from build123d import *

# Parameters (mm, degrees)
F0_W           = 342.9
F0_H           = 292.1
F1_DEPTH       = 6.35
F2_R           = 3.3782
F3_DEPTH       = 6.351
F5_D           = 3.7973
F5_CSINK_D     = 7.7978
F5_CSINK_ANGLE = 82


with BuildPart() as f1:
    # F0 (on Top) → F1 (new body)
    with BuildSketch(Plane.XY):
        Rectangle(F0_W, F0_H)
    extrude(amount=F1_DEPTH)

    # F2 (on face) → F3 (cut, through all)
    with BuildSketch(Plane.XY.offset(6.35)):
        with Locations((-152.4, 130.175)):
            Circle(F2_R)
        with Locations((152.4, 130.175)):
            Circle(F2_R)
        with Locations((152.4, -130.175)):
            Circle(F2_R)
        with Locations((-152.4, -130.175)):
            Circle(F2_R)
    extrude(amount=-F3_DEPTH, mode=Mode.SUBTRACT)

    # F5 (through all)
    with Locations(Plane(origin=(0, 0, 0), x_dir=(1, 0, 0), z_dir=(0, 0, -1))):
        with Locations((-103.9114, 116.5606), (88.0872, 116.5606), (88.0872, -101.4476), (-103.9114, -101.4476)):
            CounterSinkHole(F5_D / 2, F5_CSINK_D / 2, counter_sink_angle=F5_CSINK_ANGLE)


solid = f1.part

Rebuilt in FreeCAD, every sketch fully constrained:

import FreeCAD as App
import Part
import Sketcher
Q = App.Units.Quantity


def add_polygon(sketch, points):
    """Adds a closed chain of lines whose ends are joined by coincident constraints."""
    first, n = sketch.GeometryCount, len(points)
    for a, b in zip(points, points[1:] + points[:1]):
        sketch.addGeometry(Part.LineSegment(App.Vector(*a, 0), App.Vector(*b, 0)), False)
    for i in range(n):
        sketch.addConstraint(Sketcher.Constraint("Coincident", first + i, 2, first + (i + 1) % n, 1))

doc = App.newDocument("Part")
params = doc.addObject("Spreadsheet::Sheet", "Params")
for row, (alias, value) in enumerate([
    ("sketch1_width", "13.5 in"),
    ("sketch1_height", "11.5 in"),
    ("pad1_length", "0.25 in"),
    ("sketch2_diameter", "0.266 in"),
    ("hole_diameter", "0.1495 in"),
    ("hole_csink_diameter", "0.307 in"),
], start=1):
    params.set(f"A{row}", alias)
    params.set(f"B{row}", "=" + value)
    params.setAlias(f"B{row}", alias)

body = doc.addObject("PartDesign::Body", "Body")

sketch1 = doc.addObject("Sketcher::SketchObject", "Sketch")
body.addObject(sketch1)
sketch1.AttachmentSupport = (doc.XY_Plane, [""])
sketch1.MapMode = "FlatFace"
add_polygon(sketch1, [(-171, 146), (-171, -146), (171, -146), (171, 146)])
sketch1.addConstraint([
    Sketcher.Constraint("Vertical", 0),
    Sketcher.Constraint("Horizontal", 1),
    Sketcher.Constraint("Vertical", 2),
    Sketcher.Constraint("Horizontal", 3),
    Sketcher.Constraint("Symmetric", 0, 2, 2, 2, -1, 1),
    Sketcher.Constraint("DistanceX", 1, 1, 1, 2, Q("13.5 in")),
    Sketcher.Constraint("DistanceY", 0, 2, 0, 1, Q("11.5 in")),
])
sketch1.setExpression("Constraints[9]", "Params.sketch1_width")
sketch1.setExpression("Constraints[10]", "Params.sketch1_height")
pad1 = doc.addObject("PartDesign::Pad", "Pad")
body.addObject(pad1)
pad1.Profile = sketch1
pad1.setExpression("Length", "Params.pad1_length")

sketch2 = doc.addObject("Sketcher::SketchObject", "Sketch001")
body.addObject(sketch2)
sketch2.AttachmentSupport = (doc.XY_Plane, [""])
sketch2.MapMode = "FlatFace"
sketch2.AttachmentOffset = App.Placement(App.Vector(0, 0, 0.25 * 25.4), App.Rotation())
sketch2.addGeometry([
    Part.Circle(App.Vector(-152.4, 130.2, 0), App.Vector(0, 0, 1), 3.4),
    Part.Circle(App.Vector(152.4, 130.2, 0), App.Vector(0, 0, 1), 3.4),
    Part.Circle(App.Vector(152.4, -130.2, 0), App.Vector(0, 0, 1), 3.4),
    Part.Circle(App.Vector(-152.4, -130.2, 0), App.Vector(0, 0, 1), 3.4),
], False)
sketch2.addConstraint([
    Sketcher.Constraint("Equal", 0, 1),
    Sketcher.Constraint("Equal", 1, 2),
    Sketcher.Constraint("Equal", 2, 3),
    Sketcher.Constraint("Symmetric", 0, 3, 2, 3, -1, 1),
    Sketcher.Constraint("Symmetric", 1, 3, 3, 3, -1, 1),
    Sketcher.Constraint("Symmetric", 0, 3, 1, 3, -2),
    Sketcher.Constraint("Diameter", 0, Q("0.266 in")),
    Sketcher.Constraint("DistanceX", 0, 3, -1, 1, Q("6 in")),
    Sketcher.Constraint("DistanceY", 2, 3, 1, 3, Q("10.25 in")),
])
sketch2.setExpression("Constraints[6]", "Params.sketch2_diameter")
pocket1 = doc.addObject("PartDesign::Pocket", "Pocket")
body.addObject(pocket1)
pocket1.Profile = sketch2
pocket1.Type = "ThroughAll"

sketch3 = doc.addObject("Sketcher::SketchObject", "Sketch002")
body.addObject(sketch3)
sketch3.AttachmentSupport = (doc.XY_Plane, [""])
sketch3.MapMode = "FlatFace"
sketch3.addGeometry([
    Part.Circle(App.Vector(-103.9, -116.6, 0), App.Vector(0, 0, 1), 1.9),
    Part.Circle(App.Vector(88.1, -116.6, 0), App.Vector(0, 0, 1), 1.9),
    Part.Circle(App.Vector(88.1, 101.4, 0), App.Vector(0, 0, 1), 1.9),
    Part.Circle(App.Vector(-103.9, 101.4, 0), App.Vector(0, 0, 1), 1.9),
], False)
sketch3.addConstraint([
    Sketcher.Constraint("Equal", 0, 1),
    Sketcher.Constraint("Equal", 1, 2),
    Sketcher.Constraint("Equal", 2, 3),
    Sketcher.Constraint("Horizontal", 0, 3, 1, 3),
    Sketcher.Constraint("Horizontal", 2, 3, 3, 3),
    Sketcher.Constraint("Vertical", 1, 3, 2, 3),
    Sketcher.Constraint("Vertical", 0, 3, 3, 3),
    Sketcher.Constraint("Diameter", 0, Q("0.1495 in")),
    Sketcher.Constraint("DistanceX", 0, 3, -1, 1, Q("4.091 in")),
    Sketcher.Constraint("DistanceY", 0, 3, -1, 1, Q("4.589 in")),
    Sketcher.Constraint("DistanceX", -1, 1, 1, 3, Q("3.468 in")),
    Sketcher.Constraint("DistanceY", -1, 1, 2, 3, Q("3.994 in")),
])
doc.recompute()
hole = doc.addObject("PartDesign::Hole", "Hole")
body.addObject(hole)
hole.Profile = sketch3
hole.ThreadType = "None"
hole.setExpression("Diameter", "Params.hole_diameter")
hole.DepthType = "ThroughAll"
hole.HoleCutType = "Countersink"
hole.setExpression("HoleCutDiameter", "Params.hole_csink_diameter")
hole.HoleCutCountersinkAngle = 82
hole.Reversed = True

doc.recompute()
